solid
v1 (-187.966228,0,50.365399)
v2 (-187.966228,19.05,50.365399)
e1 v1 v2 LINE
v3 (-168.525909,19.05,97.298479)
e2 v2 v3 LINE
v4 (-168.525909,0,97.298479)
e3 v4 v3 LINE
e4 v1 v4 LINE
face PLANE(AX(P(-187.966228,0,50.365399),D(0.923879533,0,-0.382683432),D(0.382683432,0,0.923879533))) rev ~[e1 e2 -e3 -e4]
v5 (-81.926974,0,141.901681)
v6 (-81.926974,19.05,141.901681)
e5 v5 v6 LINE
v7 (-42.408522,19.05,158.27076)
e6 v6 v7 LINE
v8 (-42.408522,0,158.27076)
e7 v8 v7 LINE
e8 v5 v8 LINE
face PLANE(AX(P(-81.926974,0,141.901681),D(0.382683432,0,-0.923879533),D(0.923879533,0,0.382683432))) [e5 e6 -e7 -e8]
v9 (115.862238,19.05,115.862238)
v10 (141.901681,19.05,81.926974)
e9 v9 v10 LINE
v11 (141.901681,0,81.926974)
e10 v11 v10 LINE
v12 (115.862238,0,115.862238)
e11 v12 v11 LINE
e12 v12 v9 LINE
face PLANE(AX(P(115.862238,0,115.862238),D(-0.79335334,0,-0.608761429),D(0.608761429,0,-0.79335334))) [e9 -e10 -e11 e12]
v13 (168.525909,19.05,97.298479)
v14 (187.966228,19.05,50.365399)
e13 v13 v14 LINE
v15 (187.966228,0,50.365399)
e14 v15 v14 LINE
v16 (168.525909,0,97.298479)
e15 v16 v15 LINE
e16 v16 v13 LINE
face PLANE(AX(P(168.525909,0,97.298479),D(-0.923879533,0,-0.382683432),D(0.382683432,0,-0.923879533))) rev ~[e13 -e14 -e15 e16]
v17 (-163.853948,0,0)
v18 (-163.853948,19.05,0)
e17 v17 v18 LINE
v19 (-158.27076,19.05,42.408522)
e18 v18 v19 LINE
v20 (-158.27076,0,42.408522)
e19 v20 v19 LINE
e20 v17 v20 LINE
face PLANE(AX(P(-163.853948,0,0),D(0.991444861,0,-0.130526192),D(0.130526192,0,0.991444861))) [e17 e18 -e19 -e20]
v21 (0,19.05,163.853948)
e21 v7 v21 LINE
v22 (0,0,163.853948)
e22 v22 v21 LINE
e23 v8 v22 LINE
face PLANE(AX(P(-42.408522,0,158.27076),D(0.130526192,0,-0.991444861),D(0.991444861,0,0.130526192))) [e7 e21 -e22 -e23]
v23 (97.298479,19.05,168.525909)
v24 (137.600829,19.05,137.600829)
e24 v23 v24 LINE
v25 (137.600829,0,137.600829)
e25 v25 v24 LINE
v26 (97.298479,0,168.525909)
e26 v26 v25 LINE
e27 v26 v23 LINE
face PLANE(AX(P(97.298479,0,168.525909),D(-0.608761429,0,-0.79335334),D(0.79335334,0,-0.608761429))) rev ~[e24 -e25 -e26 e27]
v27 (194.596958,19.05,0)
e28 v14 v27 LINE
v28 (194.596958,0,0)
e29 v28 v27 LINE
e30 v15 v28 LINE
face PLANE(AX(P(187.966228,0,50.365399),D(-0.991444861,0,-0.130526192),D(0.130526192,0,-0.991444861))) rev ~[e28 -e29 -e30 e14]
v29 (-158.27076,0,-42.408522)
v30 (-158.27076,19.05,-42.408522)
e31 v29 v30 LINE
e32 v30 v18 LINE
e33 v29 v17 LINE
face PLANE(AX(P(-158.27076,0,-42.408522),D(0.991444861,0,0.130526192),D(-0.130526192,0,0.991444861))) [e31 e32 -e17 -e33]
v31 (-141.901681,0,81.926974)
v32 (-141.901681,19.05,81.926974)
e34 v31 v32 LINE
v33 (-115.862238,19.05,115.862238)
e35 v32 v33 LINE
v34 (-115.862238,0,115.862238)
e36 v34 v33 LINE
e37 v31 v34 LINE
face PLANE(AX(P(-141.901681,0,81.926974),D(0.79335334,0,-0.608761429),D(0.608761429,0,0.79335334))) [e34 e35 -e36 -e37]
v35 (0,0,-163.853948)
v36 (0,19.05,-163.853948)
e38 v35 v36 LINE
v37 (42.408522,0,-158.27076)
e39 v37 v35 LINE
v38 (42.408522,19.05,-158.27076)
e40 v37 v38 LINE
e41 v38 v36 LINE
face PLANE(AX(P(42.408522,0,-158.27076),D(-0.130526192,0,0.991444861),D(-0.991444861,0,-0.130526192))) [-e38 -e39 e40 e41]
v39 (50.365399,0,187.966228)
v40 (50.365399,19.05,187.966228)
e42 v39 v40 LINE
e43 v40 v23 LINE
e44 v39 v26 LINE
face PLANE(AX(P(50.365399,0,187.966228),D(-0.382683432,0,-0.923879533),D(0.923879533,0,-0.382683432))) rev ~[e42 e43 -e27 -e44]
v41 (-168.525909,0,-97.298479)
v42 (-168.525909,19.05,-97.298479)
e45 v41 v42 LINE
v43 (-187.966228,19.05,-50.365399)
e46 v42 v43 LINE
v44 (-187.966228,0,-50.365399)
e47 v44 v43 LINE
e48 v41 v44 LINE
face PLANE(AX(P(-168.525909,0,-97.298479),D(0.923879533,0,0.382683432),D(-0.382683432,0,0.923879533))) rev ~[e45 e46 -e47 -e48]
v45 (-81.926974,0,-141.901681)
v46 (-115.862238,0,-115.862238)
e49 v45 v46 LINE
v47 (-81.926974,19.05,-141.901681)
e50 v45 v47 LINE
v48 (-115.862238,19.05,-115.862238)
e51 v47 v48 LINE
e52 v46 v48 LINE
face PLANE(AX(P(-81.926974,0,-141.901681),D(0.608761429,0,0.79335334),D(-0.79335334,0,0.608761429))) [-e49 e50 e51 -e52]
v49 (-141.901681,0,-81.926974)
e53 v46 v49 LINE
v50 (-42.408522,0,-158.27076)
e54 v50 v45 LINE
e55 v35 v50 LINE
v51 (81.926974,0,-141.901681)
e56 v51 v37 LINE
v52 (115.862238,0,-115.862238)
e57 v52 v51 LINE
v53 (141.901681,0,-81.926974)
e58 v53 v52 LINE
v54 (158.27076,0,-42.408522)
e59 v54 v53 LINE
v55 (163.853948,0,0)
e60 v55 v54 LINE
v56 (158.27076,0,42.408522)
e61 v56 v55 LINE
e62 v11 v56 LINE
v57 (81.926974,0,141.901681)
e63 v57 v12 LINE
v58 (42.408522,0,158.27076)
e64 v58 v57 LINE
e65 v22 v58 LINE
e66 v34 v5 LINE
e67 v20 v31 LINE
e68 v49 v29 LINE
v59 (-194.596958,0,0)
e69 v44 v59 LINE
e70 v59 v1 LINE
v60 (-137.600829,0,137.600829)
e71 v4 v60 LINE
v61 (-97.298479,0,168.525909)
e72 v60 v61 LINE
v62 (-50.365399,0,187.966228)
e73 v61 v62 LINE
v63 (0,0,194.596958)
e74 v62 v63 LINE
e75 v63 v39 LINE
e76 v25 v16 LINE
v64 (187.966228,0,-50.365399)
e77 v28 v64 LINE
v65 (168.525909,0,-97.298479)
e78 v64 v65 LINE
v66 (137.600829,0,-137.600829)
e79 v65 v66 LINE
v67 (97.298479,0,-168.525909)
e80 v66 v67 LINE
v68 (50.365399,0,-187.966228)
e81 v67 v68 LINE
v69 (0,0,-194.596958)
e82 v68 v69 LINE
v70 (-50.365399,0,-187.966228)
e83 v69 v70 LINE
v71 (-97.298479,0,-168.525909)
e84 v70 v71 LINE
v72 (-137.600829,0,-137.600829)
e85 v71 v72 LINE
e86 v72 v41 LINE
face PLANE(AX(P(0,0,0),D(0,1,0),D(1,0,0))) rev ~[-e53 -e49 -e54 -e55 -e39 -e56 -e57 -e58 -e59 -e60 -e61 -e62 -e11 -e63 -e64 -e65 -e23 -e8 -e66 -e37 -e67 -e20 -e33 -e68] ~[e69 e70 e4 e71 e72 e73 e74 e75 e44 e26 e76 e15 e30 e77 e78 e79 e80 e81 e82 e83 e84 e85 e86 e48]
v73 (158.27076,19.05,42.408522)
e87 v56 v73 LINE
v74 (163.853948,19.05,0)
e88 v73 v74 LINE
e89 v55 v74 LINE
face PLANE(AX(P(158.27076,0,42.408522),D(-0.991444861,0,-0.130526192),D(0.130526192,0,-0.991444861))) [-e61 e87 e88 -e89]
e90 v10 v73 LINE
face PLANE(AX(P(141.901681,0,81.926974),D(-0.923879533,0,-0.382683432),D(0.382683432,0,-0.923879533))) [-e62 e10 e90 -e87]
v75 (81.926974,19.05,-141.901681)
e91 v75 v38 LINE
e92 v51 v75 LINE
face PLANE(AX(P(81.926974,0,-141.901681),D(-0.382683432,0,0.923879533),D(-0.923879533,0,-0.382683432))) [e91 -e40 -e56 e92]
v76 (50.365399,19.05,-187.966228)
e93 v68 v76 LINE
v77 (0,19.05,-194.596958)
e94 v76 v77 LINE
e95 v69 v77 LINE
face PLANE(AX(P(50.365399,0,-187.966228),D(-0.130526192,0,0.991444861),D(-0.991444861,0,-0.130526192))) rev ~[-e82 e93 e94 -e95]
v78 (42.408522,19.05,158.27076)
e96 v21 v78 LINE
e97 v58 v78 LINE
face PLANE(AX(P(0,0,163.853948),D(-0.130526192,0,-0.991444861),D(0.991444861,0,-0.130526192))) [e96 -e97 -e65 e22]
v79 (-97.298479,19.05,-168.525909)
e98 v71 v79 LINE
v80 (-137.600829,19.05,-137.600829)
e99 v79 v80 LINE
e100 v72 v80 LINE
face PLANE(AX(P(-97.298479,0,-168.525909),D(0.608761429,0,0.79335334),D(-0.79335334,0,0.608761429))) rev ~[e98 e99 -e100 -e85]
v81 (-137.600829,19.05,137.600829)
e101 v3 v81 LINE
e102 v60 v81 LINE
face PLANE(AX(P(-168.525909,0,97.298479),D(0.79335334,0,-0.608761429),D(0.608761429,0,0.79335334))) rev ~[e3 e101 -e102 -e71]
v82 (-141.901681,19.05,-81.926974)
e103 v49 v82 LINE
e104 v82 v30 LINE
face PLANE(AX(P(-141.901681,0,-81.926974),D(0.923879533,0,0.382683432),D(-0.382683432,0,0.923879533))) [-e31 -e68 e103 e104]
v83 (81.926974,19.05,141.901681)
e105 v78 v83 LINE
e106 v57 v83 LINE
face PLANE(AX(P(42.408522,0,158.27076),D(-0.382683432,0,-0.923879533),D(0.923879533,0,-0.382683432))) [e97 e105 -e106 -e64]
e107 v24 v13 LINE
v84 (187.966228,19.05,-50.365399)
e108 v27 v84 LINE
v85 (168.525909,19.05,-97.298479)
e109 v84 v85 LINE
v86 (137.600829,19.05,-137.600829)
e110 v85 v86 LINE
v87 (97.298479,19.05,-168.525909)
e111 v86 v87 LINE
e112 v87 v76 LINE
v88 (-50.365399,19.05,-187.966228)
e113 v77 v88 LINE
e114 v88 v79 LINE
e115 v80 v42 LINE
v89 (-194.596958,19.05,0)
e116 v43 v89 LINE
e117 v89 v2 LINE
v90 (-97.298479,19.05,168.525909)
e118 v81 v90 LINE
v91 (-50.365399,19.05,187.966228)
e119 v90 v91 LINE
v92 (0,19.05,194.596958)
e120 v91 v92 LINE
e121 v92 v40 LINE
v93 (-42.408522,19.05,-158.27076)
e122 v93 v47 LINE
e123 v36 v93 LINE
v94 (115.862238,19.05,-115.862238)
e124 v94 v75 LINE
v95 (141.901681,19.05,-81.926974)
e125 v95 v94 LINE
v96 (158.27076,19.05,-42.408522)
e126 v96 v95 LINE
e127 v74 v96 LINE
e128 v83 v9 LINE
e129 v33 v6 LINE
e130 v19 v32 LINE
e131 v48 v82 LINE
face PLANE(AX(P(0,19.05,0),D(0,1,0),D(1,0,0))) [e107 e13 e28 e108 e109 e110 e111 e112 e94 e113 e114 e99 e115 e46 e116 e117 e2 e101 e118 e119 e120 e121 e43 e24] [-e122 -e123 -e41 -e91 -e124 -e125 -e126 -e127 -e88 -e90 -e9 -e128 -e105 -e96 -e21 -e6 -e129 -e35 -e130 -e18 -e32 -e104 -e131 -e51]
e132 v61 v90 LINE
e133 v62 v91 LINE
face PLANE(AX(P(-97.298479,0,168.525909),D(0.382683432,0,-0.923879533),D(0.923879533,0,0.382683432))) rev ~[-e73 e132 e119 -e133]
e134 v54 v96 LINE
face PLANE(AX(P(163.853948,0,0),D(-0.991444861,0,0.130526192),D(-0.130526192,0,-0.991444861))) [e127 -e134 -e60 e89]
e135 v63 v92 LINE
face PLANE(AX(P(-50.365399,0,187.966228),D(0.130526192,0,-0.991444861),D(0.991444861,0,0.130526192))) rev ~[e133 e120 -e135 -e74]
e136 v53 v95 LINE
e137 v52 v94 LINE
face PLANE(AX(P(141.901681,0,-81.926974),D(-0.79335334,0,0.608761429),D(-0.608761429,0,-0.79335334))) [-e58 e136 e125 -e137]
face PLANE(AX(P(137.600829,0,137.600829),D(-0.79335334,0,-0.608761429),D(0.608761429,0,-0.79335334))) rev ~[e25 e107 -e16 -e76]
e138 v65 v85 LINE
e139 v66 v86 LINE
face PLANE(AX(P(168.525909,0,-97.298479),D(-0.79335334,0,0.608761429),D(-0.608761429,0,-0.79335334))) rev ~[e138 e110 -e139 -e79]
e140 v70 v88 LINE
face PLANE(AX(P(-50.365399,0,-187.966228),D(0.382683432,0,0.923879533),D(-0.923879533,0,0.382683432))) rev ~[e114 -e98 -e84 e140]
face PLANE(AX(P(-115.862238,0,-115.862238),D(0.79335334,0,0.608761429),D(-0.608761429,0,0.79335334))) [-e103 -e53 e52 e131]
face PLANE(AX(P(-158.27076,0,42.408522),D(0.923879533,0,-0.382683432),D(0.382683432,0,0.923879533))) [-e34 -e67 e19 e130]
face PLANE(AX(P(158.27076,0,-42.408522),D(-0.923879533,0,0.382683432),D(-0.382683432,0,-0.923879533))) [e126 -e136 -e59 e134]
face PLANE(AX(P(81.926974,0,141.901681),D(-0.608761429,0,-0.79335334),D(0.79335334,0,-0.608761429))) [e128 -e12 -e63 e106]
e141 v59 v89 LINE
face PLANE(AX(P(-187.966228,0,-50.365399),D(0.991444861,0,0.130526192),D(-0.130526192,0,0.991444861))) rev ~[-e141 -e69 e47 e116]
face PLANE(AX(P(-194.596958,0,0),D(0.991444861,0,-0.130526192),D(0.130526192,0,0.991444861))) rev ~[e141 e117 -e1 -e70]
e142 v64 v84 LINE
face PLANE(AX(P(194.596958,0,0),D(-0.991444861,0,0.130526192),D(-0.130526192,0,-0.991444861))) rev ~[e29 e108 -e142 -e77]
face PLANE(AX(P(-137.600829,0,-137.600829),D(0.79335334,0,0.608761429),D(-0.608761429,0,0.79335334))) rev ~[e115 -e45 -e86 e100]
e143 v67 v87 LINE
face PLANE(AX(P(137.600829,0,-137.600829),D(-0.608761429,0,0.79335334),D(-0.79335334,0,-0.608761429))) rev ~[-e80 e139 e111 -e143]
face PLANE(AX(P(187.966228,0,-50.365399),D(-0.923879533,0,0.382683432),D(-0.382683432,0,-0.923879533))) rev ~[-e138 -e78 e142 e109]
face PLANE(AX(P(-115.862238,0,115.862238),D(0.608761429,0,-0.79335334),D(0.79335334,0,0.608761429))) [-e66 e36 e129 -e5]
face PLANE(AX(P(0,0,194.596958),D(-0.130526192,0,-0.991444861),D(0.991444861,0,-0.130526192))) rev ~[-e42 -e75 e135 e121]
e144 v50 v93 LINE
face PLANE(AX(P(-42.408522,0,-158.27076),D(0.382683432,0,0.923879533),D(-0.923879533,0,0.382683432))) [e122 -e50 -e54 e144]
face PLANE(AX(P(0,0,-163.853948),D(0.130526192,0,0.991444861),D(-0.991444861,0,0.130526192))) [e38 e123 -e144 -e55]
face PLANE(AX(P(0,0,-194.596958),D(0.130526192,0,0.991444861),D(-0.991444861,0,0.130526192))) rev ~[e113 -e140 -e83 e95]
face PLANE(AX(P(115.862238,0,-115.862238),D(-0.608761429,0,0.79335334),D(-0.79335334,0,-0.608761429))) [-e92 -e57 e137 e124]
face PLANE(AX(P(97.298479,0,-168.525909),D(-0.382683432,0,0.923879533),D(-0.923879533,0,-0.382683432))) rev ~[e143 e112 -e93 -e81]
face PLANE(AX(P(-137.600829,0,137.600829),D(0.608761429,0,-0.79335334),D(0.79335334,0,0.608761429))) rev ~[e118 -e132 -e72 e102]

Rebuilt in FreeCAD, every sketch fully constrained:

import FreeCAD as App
import Part
import Sketcher

V = App.Vector
Q = App.Units.Quantity

doc = App.newDocument("Part")
body = doc.addObject("PartDesign::Body", "Body")

sketch1 = doc.addObject("Sketcher::SketchObject", "Sketch")
body.addObject(sketch1)
sketch1.AttachmentSupport = (doc.XZ_Plane, [""])
sketch1.MapMode = "FlatFace"
sketch1.addGeometry(Part.LineSegment(V(-195, 0, 0), V(-188, 50, 0)), False)
sketch1.addGeometry(Part.LineSegment(V(-188, 50, 0), V(-169, 97, 0)), False)
sketch1.addGeometry(Part.LineSegment(V(-169, 97, 0), V(-138, 138, 0)), False)
sketch1.addGeometry(Part.LineSegment(V(-138, 138, 0), V(-97, 169, 0)), False)
sketch1.addGeometry(Part.LineSegment(V(-97, 169, 0), V(-50, 188, 0)), False)
sketch1.addGeometry(Part.LineSegment(V(-50, 188, 0), V(0, 195, 0)), False)
sketch1.addGeometry(Part.LineSegment(V(0, 195, 0), V(50, 188, 0)), False)
sketch1.addGeometry(Part.LineSegment(V(50, 188, 0), V(97, 169, 0)), False)
sketch1.addGeometry(Part.LineSegment(V(97, 169, 0), V(138, 138, 0)), False)
sketch1.addGeometry(Part.LineSegment(V(138, 138, 0), V(169, 97, 0)), False)
sketch1.addGeometry(Part.LineSegment(V(169, 97, 0), V(188, 50, 0)), False)
sketch1.addGeometry(Part.LineSegment(V(188, 50, 0), V(195, 0, 0)), False)
sketch1.addGeometry(Part.LineSegment(V(195, 0, 0), V(188, -50, 0)), False)
sketch1.addGeometry(Part.LineSegment(V(188, -50, 0), V(169, -97, 0)), False)
sketch1.addGeometry(Part.LineSegment(V(169, -97, 0), V(138, -138, 0)), False)
sketch1.addGeometry(Part.LineSegment(V(138, -138, 0), V(97, -169, 0)), False)
sketch1.addGeometry(Part.LineSegment(V(97, -169, 0), V(50, -188, 0)), False)
sketch1.addGeometry(Part.LineSegment(V(50, -188, 0), V(0, -195, 0)), False)
sketch1.addGeometry(Part.LineSegment(V(0, -195, 0), V(-50, -188, 0)), False)
sketch1.addGeometry(Part.LineSegment(V(-50, -188, 0), V(-97, -169, 0)), False)
sketch1.addGeometry(Part.LineSegment(V(-97, -169, 0), V(-138, -138, 0)), False)
sketch1.addGeometry(Part.LineSegment(V(-138, -138, 0), V(-169, -97, 0)), False)
sketch1.addGeometry(Part.LineSegment(V(-169, -97, 0), V(-188, -50, 0)), False)
sketch1.addGeometry(Part.LineSegment(V(-188, -50, 0), V(-195, 0, 0)), False)
sketch1.addGeometry(Part.LineSegment(V(-158, 42, 0), V(-164, 0, 0)), False)
sketch1.addGeometry(Part.LineSegment(V(-164, 0, 0), V(-158, -42, 0)), False)
sketch1.addGeometry(Part.LineSegment(V(-158, -42, 0), V(-142, -82, 0)), False)
sketch1.addGeometry(Part.LineSegment(V(-142, -82, 0), V(-116, -116, 0)), False)
sketch1.addGeometry(Part.LineSegment(V(-116, -116, 0), V(-82, -142, 0)), False)
sketch1.addGeometry(Part.LineSegment(V(-82, -142, 0), V(-42, -158, 0)), False)
sketch1.addGeometry(Part.LineSegment(V(-42, -158, 0), V(0, -164, 0)), False)
sketch1.addGeometry(Part.LineSegment(V(0, -164, 0), V(42, -158, 0)), False)
sketch1.addGeometry(Part.LineSegment(V(42, -158, 0), V(82, -142, 0)), False)
sketch1.addGeometry(Part.LineSegment(V(82, -142, 0), V(116, -116, 0)), False)
sketch1.addGeometry(Part.LineSegment(V(116, -116, 0), V(142, -82, 0)), False)
sketch1.addGeometry(Part.LineSegment(V(142, -82, 0), V(158, -42, 0)), False)
sketch1.addGeometry(Part.LineSegment(V(158, -42, 0), V(164, 0, 0)), False)
sketch1.addGeometry(Part.LineSegment(V(164, 0, 0), V(158, 42, 0)), False)
sketch1.addGeometry(Part.LineSegment(V(158, 42, 0), V(142, 82, 0)), False)
sketch1.addGeometry(Part.LineSegment(V(142, 82, 0), V(116, 116, 0)), False)
sketch1.addGeometry(Part.LineSegment(V(116, 116, 0), V(82, 142, 0)), False)
sketch1.addGeometry(Part.LineSegment(V(82, 142, 0), V(42, 158, 0)), False)
sketch1.addGeometry(Part.LineSegment(V(42, 158, 0), V(0, 164, 0)), False)
sketch1.addGeometry(Part.LineSegment(V(0, 164, 0), V(-42, 158, 0)), False)
sketch1.addGeometry(Part.LineSegment(V(-42, 158, 0), V(-82, 142, 0)), False)
sketch1.addGeometry(Part.LineSegment(V(-82, 142, 0), V(-116, 116, 0)), False)
sketch1.addGeometry(Part.LineSegment(V(-116, 116, 0), V(-142, 82, 0)), False)
sketch1.addGeometry(Part.LineSegment(V(-142, 82, 0), V(-158, 42, 0)), False)
sketch1.addConstraint(Sketcher.Constraint("Coincident", 0, 2, 1, 1))
sketch1.addConstraint(Sketcher.Constraint("Coincident", 1, 2, 2, 1))
sketch1.addConstraint(Sketcher.Constraint("Coincident", 2, 2, 3, 1))
sketch1.addConstraint(Sketcher.Constraint("Coincident", 3, 2, 4, 1))
sketch1.addConstraint(Sketcher.Constraint("Coincident", 4, 2, 5, 1))
sketch1.addConstraint(Sketcher.Constraint("Coincident", 5, 2, 6, 1))
sketch1.addConstraint(Sketcher.Constraint("Coincident", 6, 2, 7, 1))
sketch1.addConstraint(Sketcher.Constraint("Coincident", 7, 2, 8, 1))
sketch1.addConstraint(Sketcher.Constraint("Coincident", 8, 2, 9, 1))
sketch1.addConstraint(Sketcher.Constraint("Coincident", 9, 2, 10, 1))
sketch1.addConstraint(Sketcher.Constraint("Coincident", 10, 2, 11, 1))
sketch1.addConstraint(Sketcher.Constraint("Coincident", 11, 2, 12, 1))
sketch1.addConstraint(Sketcher.Constraint("Coincident", 12, 2, 13, 1))
sketch1.addConstraint(Sketcher.Constraint("Coincident", 13, 2, 14, 1))
sketch1.addConstraint(Sketcher.Constraint("Coincident", 14, 2, 15, 1))
sketch1.addConstraint(Sketcher.Constraint("Coincident", 15, 2, 16, 1))
sketch1.addConstraint(Sketcher.Constraint("Coincident", 16, 2, 17, 1))
sketch1.addConstraint(Sketcher.Constraint("Coincident", 17, 2, 18, 1))
sketch1.addConstraint(Sketcher.Constraint("Coincident", 18, 2, 19, 1))
sketch1.addConstraint(Sketcher.Constraint("Coincident", 19, 2, 20, 1))
sketch1.addConstraint(Sketcher.Constraint("Coincident", 20, 2, 21, 1))
sketch1.addConstraint(Sketcher.Constraint("Coincident", 21, 2, 22, 1))
sketch1.addConstraint(Sketcher.Constraint("Coincident", 22, 2, 23, 1))
sketch1.addConstraint(Sketcher.Constraint("Coincident", 23, 2, 0, 1))
sketch1.addConstraint(Sketcher.Constraint("Coincident", 24, 2, 25, 1))
sketch1.addConstraint(Sketcher.Constraint("Coincident", 25, 2, 26, 1))
sketch1.addConstraint(Sketcher.Constraint("Coincident", 26, 2, 27, 1))
sketch1.addConstraint(Sketcher.Constraint("Coincident", 27, 2, 28, 1))
sketch1.addConstraint(Sketcher.Constraint("Coincident", 28, 2, 29, 1))
sketch1.addConstraint(Sketcher.Constraint("Coincident", 29, 2, 30, 1))
sketch1.addConstraint(Sketcher.Constraint("Coincident", 30, 2, 31, 1))
sketch1.addConstraint(Sketcher.Constraint("Coincident", 31, 2, 32, 1))
sketch1.addConstraint(Sketcher.Constraint("Coincident", 32, 2, 33, 1))
sketch1.addConstraint(Sketcher.Constraint("Coincident", 33, 2, 34, 1))
sketch1.addConstraint(Sketcher.Constraint("Coincident", 34, 2, 35, 1))
sketch1.addConstraint(Sketcher.Constraint("Coincident", 35, 2, 36, 1))
sketch1.addConstraint(Sketcher.Constraint("Coincident", 36, 2, 37, 1))
sketch1.addConstraint(Sketcher.Constraint("Coincident", 37, 2, 38, 1))
sketch1.addConstraint(Sketcher.Constraint("Coincident", 38, 2, 39, 1))
sketch1.addConstraint(Sketcher.Constraint("Coincident", 39, 2, 40, 1))
sketch1.addConstraint(Sketcher.Constraint("Coincident", 40, 2, 41, 1))
sketch1.addConstraint(Sketcher.Constraint("Coincident", 41, 2, 42, 1))
sketch1.addConstraint(Sketcher.Constraint("Coincident", 42, 2, 43, 1))
sketch1.addConstraint(Sketcher.Constraint("Coincident", 43, 2, 44, 1))
sketch1.addConstraint(Sketcher.Constraint("Coincident", 44, 2, 45, 1))
sketch1.addConstraint(Sketcher.Constraint("Coincident", 45, 2, 46, 1))
sketch1.addConstraint(Sketcher.Constraint("Coincident", 46, 2, 47, 1))
sketch1.addConstraint(Sketcher.Constraint("Coincident", 47, 2, 24, 1))
sketch1.addConstraint(Sketcher.Constraint("Symmetric", 0, 2, 12, 2, -1, 1))
sketch1.addConstraint(Sketcher.Constraint("Symmetric", 1, 2, 13, 2, -1, 1))
sketch1.addConstraint(Sketcher.Constraint("Symmetric", 2, 2, 14, 2, -1, 1))
sketch1.addConstraint(Sketcher.Constraint("Symmetric", 3, 2, 15, 2, -1, 1))
sketch1.addConstraint(Sketcher.Constraint("Symmetric", 4, 2, 16, 2, -1, 1))
sketch1.addConstraint(Sketcher.Constraint("Symmetric", 5, 2, 17, 2, -1, 1))
sketch1.addConstraint(Sketcher.Constraint("Symmetric", 6, 2, 18, 2, -1, 1))
sketch1.addConstraint(Sketcher.Constraint("Symmetric", 7, 2, 19, 2, -1, 1))
sketch1.addConstraint(Sketcher.Constraint("Symmetric", 8, 2, 20, 2, -1, 1))
sketch1.addConstraint(Sketcher.Constraint("Symmetric", 9, 2, 21, 2, -1, 1))
sketch1.addConstraint(Sketcher.Constraint("Symmetric", 10, 2, 22, 2, -1, 1))
sketch1.addConstraint(Sketcher.Constraint("Symmetric", 11, 2, 23, 2, -1, 1))
sketch1.addConstraint(Sketcher.Constraint("Symmetric", 24, 2, 36, 2, -1, 1))
sketch1.addConstraint(Sketcher.Constraint("Symmetric", 25, 2, 37, 2, -1, 1))
sketch1.addConstraint(Sketcher.Constraint("Symmetric", 26, 2, 38, 2, -1, 1))
sketch1.addConstraint(Sketcher.Constraint("Symmetric", 27, 2, 39, 2, -1, 1))
sketch1.addConstraint(Sketcher.Constraint("Symmetric", 28, 2, 40, 2, -1, 1))
sketch1.addConstraint(Sketcher.Constraint("Symmetric", 29, 2, 41, 2, -1, 1))
sketch1.addConstraint(Sketcher.Constraint("Symmetric", 30, 2, 42, 2, -1, 1))
sketch1.addConstraint(Sketcher.Constraint("Symmetric", 31, 2, 43, 2, -1, 1))
sketch1.addConstraint(Sketcher.Constraint("Symmetric", 32, 2, 44, 2, -1, 1))
sketch1.addConstraint(Sketcher.Constraint("Symmetric", 33, 2, 45, 2, -1, 1))
sketch1.addConstraint(Sketcher.Constraint("Symmetric", 34, 2, 46, 2, -1, 1))
sketch1.addConstraint(Sketcher.Constraint("Symmetric", 35, 2, 47, 2, -1, 1))
sketch1.addConstraint(Sketcher.Constraint("Symmetric", 4, 2, 6, 2, -2))
sketch1.addConstraint(Sketcher.Constraint("Symmetric", 3, 2, 7, 2, -2))
sketch1.addConstraint(Sketcher.Constraint("Symmetric", 2, 2, 8, 2, -2))
sketch1.addConstraint(Sketcher.Constraint("Symmetric", 1, 2, 9, 2, -2))
sketch1.addConstraint(Sketcher.Constraint("Symmetric", 0, 2, 10, 2, -2))
sketch1.addConstraint(Sketcher.Constraint("Symmetric", 29, 2, 31, 2, -2))
sketch1.addConstraint(Sketcher.Constraint("Symmetric", 28, 2, 32, 2, -2))
sketch1.addConstraint(Sketcher.Constraint("Symmetric", 27, 2, 33, 2, -2))
sketch1.addConstraint(Sketcher.Constraint("Symmetric", 26, 2, 34, 2, -2))
sketch1.addConstraint(Sketcher.Constraint("Symmetric", 25, 2, 35, 2, -2))
sketch1.addConstraint(Sketcher.Constraint("PointOnObject", 5, 2, -2))
sketch1.addConstraint(Sketcher.Constraint("PointOnObject", 11, 2, -1))
sketch1.addConstraint(Sketcher.Constraint("PointOnObject", 24, 2, -1))
sketch1.addConstraint(Sketcher.Constraint("PointOnObject", 30, 2, -2))
sketch1.addConstraint(Sketcher.Constraint("Perpendicular", 0, 6))
sketch1.addConstraint(Sketcher.Constraint("Perpendicular", 1, 7))
sketch1.addConstraint(Sketcher.Constraint("Perpendicular", 2, 8))
sketch1.addConstraint(Sketcher.Constraint("Perpendicular", 18, 24))
sketch1.addConstraint(Sketcher.Constraint("Parallel", 22, 26))
sketch1.addConstraint(Sketcher.Constraint("Parallel", 21, 27))
sketch1.addConstraint(Sketcher.Constraint("Parallel", 20, 28))
sketch1.addConstraint(Sketcher.Constraint("Parallel", 19, 29))
sketch1.addConstraint(Sketcher.Constraint("Perpendicular", 24, 30))
sketch1.addConstraint(Sketcher.Constraint("Equal", 0, 1))
sketch1.addConstraint(Sketcher.Constraint("Equal", 1, 2))
sketch1.addConstraint(Sketcher.Constraint("Equal", 2, 3))
sketch1.addConstraint(Sketcher.Constraint("Equal", 3, 4))
sketch1.addConstraint(Sketcher.Constraint("Equal", 4, 5))
sketch1.addConstraint(Sketcher.Constraint("Equal", 25, 26))
sketch1.addConstraint(Sketcher.Constraint("Equal", 26, 27))
sketch1.addConstraint(Sketcher.Constraint("Equal", 27, 28))
sketch1.addConstraint(Sketcher.Constraint("Equal", 28, 29))
sketch1.addConstraint(Sketcher.Constraint("Equal", 29, 30))
sketch1.addConstraint(Sketcher.Constraint("Distance", 0, Q("2 in")))
sketch1.addConstraint(Sketcher.Constraint("Angle", 0, Q("82.5 deg")))
sketch1.addConstraint(Sketcher.Constraint("Angle", 1, Q("67.5 deg")))
sketch1.addConstraint(Sketcher.Constraint("Angle", 2, Q("52.5 deg")))
sketch1.addConstraint(Sketcher.Constraint("DistanceX", 23, 2, 25, 2, Q("36.326199 mm")))
pad1 = doc.addObject("PartDesign::Pad", "Pad")
body.addObject(pad1)
pad1.Profile = sketch1
pad1.Length = Q("0.75 in")
pad1.Reversed = True

doc.recompute()
